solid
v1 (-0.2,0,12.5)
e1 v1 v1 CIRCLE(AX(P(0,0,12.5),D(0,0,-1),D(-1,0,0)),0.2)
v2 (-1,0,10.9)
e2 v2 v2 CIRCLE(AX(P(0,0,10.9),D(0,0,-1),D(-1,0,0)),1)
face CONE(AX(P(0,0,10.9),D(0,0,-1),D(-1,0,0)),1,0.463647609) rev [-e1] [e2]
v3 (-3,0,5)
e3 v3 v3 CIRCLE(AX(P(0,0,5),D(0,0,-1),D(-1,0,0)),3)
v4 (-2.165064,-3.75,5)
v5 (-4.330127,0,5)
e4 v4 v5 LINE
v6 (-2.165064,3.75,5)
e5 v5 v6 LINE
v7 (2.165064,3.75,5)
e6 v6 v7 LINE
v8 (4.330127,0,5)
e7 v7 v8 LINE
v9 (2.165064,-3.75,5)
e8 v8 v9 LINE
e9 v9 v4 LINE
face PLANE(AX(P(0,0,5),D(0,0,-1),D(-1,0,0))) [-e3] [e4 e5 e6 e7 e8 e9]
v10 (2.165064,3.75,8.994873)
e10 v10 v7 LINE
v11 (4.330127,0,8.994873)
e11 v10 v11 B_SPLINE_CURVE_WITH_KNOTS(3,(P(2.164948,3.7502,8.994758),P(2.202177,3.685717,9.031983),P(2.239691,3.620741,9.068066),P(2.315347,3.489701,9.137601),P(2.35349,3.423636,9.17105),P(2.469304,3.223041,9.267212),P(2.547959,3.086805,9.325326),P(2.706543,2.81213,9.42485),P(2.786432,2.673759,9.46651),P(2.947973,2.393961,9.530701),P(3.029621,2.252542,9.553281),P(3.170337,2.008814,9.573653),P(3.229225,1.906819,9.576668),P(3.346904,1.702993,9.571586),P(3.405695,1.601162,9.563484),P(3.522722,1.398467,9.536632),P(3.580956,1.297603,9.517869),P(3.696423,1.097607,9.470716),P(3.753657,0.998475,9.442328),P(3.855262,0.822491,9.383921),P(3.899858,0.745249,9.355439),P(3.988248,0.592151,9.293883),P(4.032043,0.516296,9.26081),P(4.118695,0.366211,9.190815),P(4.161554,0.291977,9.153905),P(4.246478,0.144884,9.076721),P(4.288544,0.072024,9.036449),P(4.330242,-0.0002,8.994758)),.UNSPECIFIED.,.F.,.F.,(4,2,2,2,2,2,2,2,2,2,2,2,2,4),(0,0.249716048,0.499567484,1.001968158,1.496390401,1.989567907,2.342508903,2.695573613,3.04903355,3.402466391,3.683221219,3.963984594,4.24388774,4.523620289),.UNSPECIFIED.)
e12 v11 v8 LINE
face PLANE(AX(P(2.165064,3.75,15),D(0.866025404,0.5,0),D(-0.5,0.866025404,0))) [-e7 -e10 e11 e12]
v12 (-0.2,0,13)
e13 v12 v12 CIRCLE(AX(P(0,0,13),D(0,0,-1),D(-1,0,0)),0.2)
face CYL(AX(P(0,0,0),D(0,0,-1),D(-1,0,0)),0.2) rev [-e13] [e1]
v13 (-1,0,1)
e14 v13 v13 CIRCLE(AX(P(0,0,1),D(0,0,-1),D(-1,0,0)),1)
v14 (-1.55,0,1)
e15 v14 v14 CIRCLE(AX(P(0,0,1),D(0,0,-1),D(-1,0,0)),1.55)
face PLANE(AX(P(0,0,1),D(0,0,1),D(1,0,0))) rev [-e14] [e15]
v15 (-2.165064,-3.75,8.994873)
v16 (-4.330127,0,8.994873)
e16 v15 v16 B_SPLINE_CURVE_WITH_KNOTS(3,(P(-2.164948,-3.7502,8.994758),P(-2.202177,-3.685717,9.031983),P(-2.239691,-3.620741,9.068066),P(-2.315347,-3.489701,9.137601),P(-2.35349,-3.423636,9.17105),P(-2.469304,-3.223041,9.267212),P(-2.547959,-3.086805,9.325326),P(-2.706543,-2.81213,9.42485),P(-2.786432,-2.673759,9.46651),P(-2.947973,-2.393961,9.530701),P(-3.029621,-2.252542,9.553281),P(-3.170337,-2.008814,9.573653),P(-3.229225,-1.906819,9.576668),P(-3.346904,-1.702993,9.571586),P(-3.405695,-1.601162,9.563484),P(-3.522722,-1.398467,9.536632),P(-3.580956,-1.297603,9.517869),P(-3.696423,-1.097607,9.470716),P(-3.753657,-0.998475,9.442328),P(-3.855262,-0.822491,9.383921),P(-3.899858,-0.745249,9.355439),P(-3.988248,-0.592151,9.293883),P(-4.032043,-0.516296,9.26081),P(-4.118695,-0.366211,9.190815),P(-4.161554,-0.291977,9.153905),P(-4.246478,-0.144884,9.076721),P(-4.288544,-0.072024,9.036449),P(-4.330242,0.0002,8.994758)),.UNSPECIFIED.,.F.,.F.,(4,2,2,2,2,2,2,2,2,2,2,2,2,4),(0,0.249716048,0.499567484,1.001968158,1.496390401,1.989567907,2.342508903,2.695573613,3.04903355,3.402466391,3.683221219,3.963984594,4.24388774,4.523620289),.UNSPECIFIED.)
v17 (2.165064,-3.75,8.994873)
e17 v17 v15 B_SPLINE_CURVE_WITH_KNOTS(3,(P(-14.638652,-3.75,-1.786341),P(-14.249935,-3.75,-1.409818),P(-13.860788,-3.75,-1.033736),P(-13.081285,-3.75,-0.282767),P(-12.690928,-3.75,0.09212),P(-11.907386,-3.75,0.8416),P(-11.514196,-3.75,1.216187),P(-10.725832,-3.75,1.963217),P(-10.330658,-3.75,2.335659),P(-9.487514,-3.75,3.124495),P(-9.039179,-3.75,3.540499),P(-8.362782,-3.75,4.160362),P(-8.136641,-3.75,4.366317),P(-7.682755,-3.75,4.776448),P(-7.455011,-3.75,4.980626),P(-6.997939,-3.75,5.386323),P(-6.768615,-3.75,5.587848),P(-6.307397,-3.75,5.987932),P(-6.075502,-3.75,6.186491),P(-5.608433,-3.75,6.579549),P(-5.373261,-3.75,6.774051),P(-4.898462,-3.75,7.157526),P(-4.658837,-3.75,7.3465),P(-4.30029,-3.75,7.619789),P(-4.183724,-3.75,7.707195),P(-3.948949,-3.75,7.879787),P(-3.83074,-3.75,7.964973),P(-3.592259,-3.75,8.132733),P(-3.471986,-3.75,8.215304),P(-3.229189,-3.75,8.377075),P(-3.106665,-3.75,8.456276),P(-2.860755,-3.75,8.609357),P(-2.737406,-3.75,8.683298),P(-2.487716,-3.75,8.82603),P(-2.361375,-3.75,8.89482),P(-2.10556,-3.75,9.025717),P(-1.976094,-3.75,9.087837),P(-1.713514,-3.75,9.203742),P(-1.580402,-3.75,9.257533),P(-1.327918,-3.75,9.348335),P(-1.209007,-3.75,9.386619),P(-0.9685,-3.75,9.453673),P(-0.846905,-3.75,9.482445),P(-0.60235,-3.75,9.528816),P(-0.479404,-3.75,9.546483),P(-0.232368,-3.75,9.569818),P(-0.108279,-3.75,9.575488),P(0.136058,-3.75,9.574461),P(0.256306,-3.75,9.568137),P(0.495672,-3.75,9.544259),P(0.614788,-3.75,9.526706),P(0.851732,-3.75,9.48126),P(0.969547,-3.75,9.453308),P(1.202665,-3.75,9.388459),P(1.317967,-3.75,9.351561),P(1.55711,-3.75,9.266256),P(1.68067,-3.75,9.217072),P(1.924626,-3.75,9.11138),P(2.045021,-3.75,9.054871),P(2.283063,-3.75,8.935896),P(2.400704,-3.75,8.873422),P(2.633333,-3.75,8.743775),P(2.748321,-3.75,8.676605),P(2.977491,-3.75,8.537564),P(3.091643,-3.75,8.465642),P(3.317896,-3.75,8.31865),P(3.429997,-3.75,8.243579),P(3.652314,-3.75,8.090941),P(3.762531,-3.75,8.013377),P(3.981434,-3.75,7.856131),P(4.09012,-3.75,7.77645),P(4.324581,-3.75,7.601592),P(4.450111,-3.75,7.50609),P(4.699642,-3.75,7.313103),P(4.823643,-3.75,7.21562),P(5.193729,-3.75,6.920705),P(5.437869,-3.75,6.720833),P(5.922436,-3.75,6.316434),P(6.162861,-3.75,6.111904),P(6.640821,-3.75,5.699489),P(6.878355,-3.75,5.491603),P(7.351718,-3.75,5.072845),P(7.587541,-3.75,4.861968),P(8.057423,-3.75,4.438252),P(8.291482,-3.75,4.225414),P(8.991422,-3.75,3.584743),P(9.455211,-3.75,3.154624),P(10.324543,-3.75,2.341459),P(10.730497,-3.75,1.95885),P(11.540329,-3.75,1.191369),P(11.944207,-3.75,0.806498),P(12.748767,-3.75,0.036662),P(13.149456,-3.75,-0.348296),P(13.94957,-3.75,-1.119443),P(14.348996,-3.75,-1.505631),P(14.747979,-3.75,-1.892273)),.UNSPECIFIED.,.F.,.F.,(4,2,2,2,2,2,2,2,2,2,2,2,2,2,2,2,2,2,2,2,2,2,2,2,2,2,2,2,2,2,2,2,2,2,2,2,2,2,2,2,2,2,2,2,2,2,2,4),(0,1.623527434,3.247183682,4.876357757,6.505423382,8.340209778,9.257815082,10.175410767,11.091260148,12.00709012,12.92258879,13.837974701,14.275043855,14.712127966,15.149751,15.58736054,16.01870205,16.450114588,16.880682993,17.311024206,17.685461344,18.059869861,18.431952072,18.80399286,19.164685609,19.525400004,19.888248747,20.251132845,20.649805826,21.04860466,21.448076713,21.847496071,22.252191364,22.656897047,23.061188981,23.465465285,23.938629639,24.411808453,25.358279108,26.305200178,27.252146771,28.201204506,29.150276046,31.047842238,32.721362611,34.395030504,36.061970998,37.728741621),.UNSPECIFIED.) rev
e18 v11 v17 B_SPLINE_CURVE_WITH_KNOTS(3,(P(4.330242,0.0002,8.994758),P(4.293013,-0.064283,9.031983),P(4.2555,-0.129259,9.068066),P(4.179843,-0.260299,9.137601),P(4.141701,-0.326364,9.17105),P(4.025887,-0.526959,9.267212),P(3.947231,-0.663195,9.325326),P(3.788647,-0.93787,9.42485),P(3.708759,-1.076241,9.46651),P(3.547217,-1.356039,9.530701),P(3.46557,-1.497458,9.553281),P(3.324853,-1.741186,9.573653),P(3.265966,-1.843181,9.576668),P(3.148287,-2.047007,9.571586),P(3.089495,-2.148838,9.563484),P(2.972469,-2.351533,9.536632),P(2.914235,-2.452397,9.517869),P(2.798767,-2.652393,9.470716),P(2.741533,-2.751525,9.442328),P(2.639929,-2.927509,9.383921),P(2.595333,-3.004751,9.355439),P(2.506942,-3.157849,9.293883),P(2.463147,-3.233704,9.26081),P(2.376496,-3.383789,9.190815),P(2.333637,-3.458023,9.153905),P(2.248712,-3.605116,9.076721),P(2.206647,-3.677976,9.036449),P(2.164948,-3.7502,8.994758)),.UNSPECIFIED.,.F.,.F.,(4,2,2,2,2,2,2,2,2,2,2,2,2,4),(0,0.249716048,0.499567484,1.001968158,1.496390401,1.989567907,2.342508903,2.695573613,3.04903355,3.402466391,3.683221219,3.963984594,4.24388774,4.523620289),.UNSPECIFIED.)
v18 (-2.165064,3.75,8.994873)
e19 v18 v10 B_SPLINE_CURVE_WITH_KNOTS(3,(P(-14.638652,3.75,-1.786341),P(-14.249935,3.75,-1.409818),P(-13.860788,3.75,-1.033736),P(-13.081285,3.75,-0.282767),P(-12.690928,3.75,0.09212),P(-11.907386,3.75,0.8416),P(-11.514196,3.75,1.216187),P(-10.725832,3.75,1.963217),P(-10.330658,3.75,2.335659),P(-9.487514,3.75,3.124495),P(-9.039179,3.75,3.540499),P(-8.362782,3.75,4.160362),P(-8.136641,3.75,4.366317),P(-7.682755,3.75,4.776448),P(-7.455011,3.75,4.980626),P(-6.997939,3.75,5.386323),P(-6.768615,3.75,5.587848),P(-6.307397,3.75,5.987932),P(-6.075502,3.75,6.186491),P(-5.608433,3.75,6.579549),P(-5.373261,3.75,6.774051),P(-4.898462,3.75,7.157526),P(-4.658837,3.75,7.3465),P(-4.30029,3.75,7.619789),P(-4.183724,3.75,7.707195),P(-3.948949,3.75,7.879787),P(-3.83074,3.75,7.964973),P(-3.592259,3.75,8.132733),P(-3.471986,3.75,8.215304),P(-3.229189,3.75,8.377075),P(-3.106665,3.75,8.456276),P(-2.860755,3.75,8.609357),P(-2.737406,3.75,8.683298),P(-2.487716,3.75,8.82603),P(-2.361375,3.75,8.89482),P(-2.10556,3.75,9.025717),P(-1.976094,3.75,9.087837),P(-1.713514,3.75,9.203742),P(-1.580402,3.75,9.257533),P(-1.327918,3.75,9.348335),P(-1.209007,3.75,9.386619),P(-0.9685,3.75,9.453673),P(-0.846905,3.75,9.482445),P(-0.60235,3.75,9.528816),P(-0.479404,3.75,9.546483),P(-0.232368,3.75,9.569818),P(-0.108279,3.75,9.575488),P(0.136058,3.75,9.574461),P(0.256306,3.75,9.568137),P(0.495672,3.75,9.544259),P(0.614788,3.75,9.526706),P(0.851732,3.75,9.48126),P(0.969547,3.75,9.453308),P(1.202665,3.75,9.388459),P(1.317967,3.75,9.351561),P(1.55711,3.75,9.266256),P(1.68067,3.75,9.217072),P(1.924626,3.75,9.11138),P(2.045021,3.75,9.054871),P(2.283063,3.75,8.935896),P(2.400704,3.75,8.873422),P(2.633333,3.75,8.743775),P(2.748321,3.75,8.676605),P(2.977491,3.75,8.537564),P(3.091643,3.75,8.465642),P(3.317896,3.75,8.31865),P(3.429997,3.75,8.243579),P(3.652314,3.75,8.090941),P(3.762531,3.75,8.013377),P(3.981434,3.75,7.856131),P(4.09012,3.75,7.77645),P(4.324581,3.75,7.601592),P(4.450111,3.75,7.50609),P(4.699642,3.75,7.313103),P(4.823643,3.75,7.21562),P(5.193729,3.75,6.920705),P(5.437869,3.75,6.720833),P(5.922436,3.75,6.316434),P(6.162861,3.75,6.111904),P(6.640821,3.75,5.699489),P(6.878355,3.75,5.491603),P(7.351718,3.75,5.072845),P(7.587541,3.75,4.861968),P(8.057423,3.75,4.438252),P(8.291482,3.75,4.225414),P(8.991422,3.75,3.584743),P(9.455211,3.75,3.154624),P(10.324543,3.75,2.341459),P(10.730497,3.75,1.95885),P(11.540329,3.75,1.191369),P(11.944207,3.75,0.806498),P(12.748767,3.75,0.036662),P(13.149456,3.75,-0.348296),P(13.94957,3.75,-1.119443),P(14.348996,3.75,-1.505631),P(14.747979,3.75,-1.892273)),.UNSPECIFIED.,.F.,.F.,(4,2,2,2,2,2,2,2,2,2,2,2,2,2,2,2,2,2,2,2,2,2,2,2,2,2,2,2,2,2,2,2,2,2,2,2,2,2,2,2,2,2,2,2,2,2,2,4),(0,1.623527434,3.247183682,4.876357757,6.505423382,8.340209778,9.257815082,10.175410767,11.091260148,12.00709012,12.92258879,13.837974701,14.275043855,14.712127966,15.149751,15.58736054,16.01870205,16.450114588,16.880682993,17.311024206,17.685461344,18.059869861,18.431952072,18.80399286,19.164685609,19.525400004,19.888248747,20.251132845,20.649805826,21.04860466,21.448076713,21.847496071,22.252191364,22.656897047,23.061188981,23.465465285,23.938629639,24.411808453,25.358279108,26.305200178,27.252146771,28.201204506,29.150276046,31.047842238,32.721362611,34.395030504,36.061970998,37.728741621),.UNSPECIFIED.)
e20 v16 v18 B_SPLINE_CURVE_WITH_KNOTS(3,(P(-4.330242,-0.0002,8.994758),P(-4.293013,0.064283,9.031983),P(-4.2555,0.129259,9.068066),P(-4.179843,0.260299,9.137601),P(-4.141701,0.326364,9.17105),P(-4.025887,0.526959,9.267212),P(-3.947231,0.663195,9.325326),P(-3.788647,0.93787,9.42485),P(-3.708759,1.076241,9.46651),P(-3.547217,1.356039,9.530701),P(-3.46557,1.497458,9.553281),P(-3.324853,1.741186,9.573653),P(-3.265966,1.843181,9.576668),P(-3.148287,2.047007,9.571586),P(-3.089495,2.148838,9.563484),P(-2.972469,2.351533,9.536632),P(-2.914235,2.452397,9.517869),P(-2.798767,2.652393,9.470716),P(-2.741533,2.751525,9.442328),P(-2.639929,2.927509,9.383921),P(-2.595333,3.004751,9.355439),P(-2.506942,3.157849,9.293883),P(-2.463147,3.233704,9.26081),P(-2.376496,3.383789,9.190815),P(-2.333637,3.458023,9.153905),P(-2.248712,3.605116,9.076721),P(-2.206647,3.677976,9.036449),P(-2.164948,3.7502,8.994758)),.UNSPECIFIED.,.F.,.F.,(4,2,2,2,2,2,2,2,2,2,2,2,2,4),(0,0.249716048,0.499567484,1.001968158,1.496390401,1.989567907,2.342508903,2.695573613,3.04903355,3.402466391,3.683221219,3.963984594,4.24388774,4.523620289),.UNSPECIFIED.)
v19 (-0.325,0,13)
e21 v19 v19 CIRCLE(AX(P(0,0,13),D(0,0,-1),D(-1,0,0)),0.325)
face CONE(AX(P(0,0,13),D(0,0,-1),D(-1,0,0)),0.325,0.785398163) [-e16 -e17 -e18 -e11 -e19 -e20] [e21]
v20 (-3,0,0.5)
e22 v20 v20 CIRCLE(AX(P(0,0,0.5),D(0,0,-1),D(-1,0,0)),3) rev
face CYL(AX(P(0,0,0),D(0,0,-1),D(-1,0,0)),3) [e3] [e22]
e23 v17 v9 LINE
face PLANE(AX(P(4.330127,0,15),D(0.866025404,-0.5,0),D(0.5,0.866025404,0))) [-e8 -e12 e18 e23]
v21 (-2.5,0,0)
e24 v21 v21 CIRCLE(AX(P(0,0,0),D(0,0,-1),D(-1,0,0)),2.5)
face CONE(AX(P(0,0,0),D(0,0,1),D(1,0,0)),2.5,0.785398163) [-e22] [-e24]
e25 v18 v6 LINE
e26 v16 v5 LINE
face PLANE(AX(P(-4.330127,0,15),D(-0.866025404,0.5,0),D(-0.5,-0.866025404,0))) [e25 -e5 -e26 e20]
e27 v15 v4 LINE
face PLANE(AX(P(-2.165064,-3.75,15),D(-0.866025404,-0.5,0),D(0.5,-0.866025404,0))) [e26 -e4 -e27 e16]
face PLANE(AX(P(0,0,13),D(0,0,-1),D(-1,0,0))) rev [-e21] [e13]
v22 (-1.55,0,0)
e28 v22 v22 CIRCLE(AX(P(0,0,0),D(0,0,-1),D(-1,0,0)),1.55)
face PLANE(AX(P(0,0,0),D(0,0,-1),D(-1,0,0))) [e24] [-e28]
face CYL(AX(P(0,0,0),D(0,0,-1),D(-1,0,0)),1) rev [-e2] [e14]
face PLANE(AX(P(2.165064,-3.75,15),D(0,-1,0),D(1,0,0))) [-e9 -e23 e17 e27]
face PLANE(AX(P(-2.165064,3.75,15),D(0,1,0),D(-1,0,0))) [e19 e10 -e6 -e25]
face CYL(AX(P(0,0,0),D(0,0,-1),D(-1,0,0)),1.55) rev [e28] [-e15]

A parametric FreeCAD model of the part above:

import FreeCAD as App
import Part
import Sketcher
Q = App.Units.Quantity


def edges_at(feature, points):
    """Names of the edges that pass closest to the given points."""
    edges = feature.Shape.Edges
    near = lambda p: min(range(len(edges)), key=lambda i: edges[i].distToShape(Part.Vertex(*p))[0])
    return sorted({f"Edge{near(p) + 1}" for p in points})

doc = App.newDocument("Part")
params = doc.addObject("Spreadsheet::Sheet", "Params")
for row, (alias, value) in enumerate([
    ("sketch1_height", "1 mm"),
    ("sketch1_height2", "5 mm"),
    ("sketch1_height3", "9.9 mm"),
    ("sketch1_height4", "0.5 mm"),
    ("sketch1_width", "1.45 mm"),
    ("revolution_angle", "360 deg"),
    ("sketch2_diameter", "16.65 mm"),
    ("pocket1_length", "10 mm"),
    ("chamfer_size", "0.5 mm"),
], start=1):
    params.set(f"A{row}", alias)
    params.set(f"B{row}", "=" + value)
    params.setAlias(f"B{row}", alias)

body = doc.addObject("PartDesign::Body", "Body")

# Sketch on XZ plane
sketch1 = doc.addObject("Sketcher::SketchObject", "Sketch")
body.addObject(sketch1)
sketch1.AttachmentSupport = (doc.XZ_Plane, [""])
sketch1.MapMode = "FlatFace"
sketch1.addGeometry(Part.LineSegment(App.Vector(3, 0, 0), App.Vector(1.55, 0, 0)), False)
sketch1.addGeometry(Part.LineSegment(App.Vector(1.55, 0, 0), App.Vector(1.55, 1, 0)), False)
sketch1.addGeometry(Part.LineSegment(App.Vector(1.55, 1, 0), App.Vector(1, 1, 0)), False)
sketch1.addGeometry(Part.LineSegment(App.Vector(1, 1, 0), App.Vector(1, 10.9, 0)), False)
sketch1.addGeometry(Part.LineSegment(App.Vector(1, 10.9, 0), App.Vector(0.2, 12.5, 0)), False)
sketch1.addGeometry(Part.LineSegment(App.Vector(0.2, 12.5, 0), App.Vector(0.2, 13, 0)), False)
sketch1.addGeometry(Part.LineSegment(App.Vector(0.2, 13, 0), App.Vector(0.33, 13, 0)), False)
sketch1.addGeometry(Part.LineSegment(App.Vector(0.33, 13, 0), App.Vector(8.32, 5, 0)), False)
sketch1.addGeometry(Part.LineSegment(App.Vector(8.32, 5, 0), App.Vector(3, 5, 0)), False)
sketch1.addGeometry(Part.LineSegment(App.Vector(3, 5, 0), App.Vector(3, 0, 0)), False)
sketch1.addConstraint(Sketcher.Constraint("Coincident", 0, 2, 1, 1))
sketch1.addConstraint(Sketcher.Constraint("Coincident", 1, 2, 2, 1))
sketch1.addConstraint(Sketcher.Constraint("Coincident", 2, 2, 3, 1))
sketch1.addConstraint(Sketcher.Constraint("Coincident", 3, 2, 4, 1))
sketch1.addConstraint(Sketcher.Constraint("Coincident", 4, 2, 5, 1))
sketch1.addConstraint(Sketcher.Constraint("Coincident", 5, 2, 6, 1))
sketch1.addConstraint(Sketcher.Constraint("Coincident", 6, 2, 7, 1))
sketch1.addConstraint(Sketcher.Constraint("Coincident", 7, 2, 8, 1))
sketch1.addConstraint(Sketcher.Constraint("Coincident", 8, 2, 9, 1))
sketch1.addConstraint(Sketcher.Constraint("Coincident", 9, 2, 0, 1))
sketch1.addConstraint(Sketcher.Constraint("Horizontal", 0))
sketch1.addConstraint(Sketcher.Constraint("Vertical", 1))
sketch1.addConstraint(Sketcher.Constraint("Horizontal", 2))
sketch1.addConstraint(Sketcher.Constraint("Vertical", 3))
sketch1.addConstraint(Sketcher.Constraint("Vertical", 5))
sketch1.addConstraint(Sketcher.Constraint("Horizontal", 6))
sketch1.addConstraint(Sketcher.Constraint("Horizontal", 8))
sketch1.addConstraint(Sketcher.Constraint("Vertical", 9))
sketch1.addConstraint(Sketcher.Constraint("PointOnObject", 0, 2, -1))
sketch1.addConstraint(Sketcher.Constraint("DistanceY", 1, 1, 1, 2, 1.0))
sketch1.addConstraint(Sketcher.Constraint("DistanceY", 9, 2, 9, 1, 5.0))
sketch1.addConstraint(Sketcher.Constraint("Angle", 7, Q("-45 deg")))
sketch1.addConstraint(Sketcher.Constraint("DistanceY", 3, 1, 3, 2, 9.9))
sketch1.addConstraint(Sketcher.Constraint("DistanceY", 5, 1, 5, 2, 0.5))
sketch1.addConstraint(Sketcher.Constraint("DistanceX", -1, 1, 2, 2, 1.0))
sketch1.addConstraint(Sketcher.Constraint("DistanceY", -1, 1, 5, 2, 13.0))
sketch1.addConstraint(Sketcher.Constraint("DistanceX", -1, 1, 8, 2, 3.0))
sketch1.addConstraint(Sketcher.Constraint("DistanceX", 0, 2, 0, 1, 1.45))
sketch1.addConstraint(Sketcher.Constraint("DistanceX", -1, 1, 4, 2, 0.2))
sketch1.addConstraint(Sketcher.Constraint("DistanceX", 6, 1, 6, 2, 0.125))
sketch1.setExpression("Constraints[19]", "Params.sketch1_height")
sketch1.setExpression("Constraints[20]", "Params.sketch1_height2")
sketch1.setExpression("Constraints[22]", "Params.sketch1_height3")
sketch1.setExpression("Constraints[23]", "Params.sketch1_height4")
sketch1.setExpression("Constraints[27]", "Params.sketch1_width")
revolution = doc.addObject("PartDesign::Revolution", "Revolution")
body.addObject(revolution)
revolution.Profile = sketch1
revolution.ReferenceAxis = (sketch1, ["V_Axis"])
revolution.setExpression("Angle", "Params.revolution_angle")

# Sketch on XY plane
sketch2 = doc.addObject("Sketcher::SketchObject", "Sketch001")
body.addObject(sketch2)
sketch2.AttachmentSupport = (doc.XY_Plane, [""])
sketch2.MapMode = "FlatFace"
sketch2.AttachmentOffset = App.Placement(App.Vector(0, 0, 5), App.Rotation())
sketch2.addGeometry(Part.Circle(App.Vector(0, 0, 0), App.Vector(0, 0, 1), 8.3), False)
sketch2.addGeometry(Part.LineSegment(App.Vector(2.2, -3.8, 0), App.Vector(4.3, 0, 0)), False)
sketch2.addGeometry(Part.LineSegment(App.Vector(4.3, 0, 0), App.Vector(2.2, 3.8, 0)), False)
sketch2.addGeometry(Part.LineSegment(App.Vector(2.2, 3.8, 0), App.Vector(-2.2, 3.8, 0)), False)
sketch2.addGeometry(Part.LineSegment(App.Vector(-2.2, 3.8, 0), App.Vector(-4.3, 0, 0)), False)
sketch2.addGeometry(Part.LineSegment(App.Vector(-4.3, 0, 0), App.Vector(-2.2, -3.8, 0)), False)
sketch2.addGeometry(Part.LineSegment(App.Vector(-2.2, -3.8, 0), App.Vector(2.2, -3.8, 0)), False)
sketch2.addConstraint(Sketcher.Constraint("Coincident", 1, 2, 2, 1))
sketch2.addConstraint(Sketcher.Constraint("Coincident", 2, 2, 3, 1))
sketch2.addConstraint(Sketcher.Constraint("Coincident", 3, 2, 4, 1))
sketch2.addConstraint(Sketcher.Constraint("Coincident", 4, 2, 5, 1))
sketch2.addConstraint(Sketcher.Constraint("Coincident", 5, 2, 6, 1))
sketch2.addConstraint(Sketcher.Constraint("Coincident", 6, 2, 1, 1))
sketch2.addConstraint(Sketcher.Constraint("Horizontal", 3))
sketch2.addConstraint(Sketcher.Constraint("Horizontal", 6))
sketch2.addConstraint(Sketcher.Constraint("Coincident", 0, 3, -1, 1))
sketch2.addConstraint(Sketcher.Constraint("Symmetric", 1, 2, 4, 2, -1, 1))
sketch2.addConstraint(Sketcher.Constraint("Symmetric", 2, 2, 5, 2, -1, 1))
sketch2.addConstraint(Sketcher.Constraint("PointOnObject", 1, 2, -1))
sketch2.addConstraint(Sketcher.Constraint("Parallel", 1, 4))
sketch2.addConstraint(Sketcher.Constraint("Vertical", 3, 2, 5, 2))
sketch2.addConstraint(Sketcher.Constraint("Diameter", 0, 16.65))
sketch2.addConstraint(Sketcher.Constraint("Angle", 1, Q("60 deg")))
sketch2.addConstraint(Sketcher.Constraint("DistanceY", 5, 2, 3, 2, 7.5))
sketch2.addConstraint(Sketcher.Constraint("DistanceX", 3, 2, 3, 1, 4.330127))
sketch2.setExpression("Constraints[14]", "Params.sketch2_diameter")
pocket1 = doc.addObject("PartDesign::Pocket", "Pocket")
body.addObject(pocket1)
pocket1.Profile = sketch2
pocket1.setExpression("Length", "Params.pocket1_length")
pocket1.Reversed = True
doc.recompute()

chamfer = doc.addObject("PartDesign::Chamfer", "Chamfer")
body.addObject(chamfer)
chamfer.Base = (pocket1, edges_at(pocket1, [(-3, 0, 0)]))
chamfer.setExpression("Size", "Params.chamfer_size")

doc.recompute()
